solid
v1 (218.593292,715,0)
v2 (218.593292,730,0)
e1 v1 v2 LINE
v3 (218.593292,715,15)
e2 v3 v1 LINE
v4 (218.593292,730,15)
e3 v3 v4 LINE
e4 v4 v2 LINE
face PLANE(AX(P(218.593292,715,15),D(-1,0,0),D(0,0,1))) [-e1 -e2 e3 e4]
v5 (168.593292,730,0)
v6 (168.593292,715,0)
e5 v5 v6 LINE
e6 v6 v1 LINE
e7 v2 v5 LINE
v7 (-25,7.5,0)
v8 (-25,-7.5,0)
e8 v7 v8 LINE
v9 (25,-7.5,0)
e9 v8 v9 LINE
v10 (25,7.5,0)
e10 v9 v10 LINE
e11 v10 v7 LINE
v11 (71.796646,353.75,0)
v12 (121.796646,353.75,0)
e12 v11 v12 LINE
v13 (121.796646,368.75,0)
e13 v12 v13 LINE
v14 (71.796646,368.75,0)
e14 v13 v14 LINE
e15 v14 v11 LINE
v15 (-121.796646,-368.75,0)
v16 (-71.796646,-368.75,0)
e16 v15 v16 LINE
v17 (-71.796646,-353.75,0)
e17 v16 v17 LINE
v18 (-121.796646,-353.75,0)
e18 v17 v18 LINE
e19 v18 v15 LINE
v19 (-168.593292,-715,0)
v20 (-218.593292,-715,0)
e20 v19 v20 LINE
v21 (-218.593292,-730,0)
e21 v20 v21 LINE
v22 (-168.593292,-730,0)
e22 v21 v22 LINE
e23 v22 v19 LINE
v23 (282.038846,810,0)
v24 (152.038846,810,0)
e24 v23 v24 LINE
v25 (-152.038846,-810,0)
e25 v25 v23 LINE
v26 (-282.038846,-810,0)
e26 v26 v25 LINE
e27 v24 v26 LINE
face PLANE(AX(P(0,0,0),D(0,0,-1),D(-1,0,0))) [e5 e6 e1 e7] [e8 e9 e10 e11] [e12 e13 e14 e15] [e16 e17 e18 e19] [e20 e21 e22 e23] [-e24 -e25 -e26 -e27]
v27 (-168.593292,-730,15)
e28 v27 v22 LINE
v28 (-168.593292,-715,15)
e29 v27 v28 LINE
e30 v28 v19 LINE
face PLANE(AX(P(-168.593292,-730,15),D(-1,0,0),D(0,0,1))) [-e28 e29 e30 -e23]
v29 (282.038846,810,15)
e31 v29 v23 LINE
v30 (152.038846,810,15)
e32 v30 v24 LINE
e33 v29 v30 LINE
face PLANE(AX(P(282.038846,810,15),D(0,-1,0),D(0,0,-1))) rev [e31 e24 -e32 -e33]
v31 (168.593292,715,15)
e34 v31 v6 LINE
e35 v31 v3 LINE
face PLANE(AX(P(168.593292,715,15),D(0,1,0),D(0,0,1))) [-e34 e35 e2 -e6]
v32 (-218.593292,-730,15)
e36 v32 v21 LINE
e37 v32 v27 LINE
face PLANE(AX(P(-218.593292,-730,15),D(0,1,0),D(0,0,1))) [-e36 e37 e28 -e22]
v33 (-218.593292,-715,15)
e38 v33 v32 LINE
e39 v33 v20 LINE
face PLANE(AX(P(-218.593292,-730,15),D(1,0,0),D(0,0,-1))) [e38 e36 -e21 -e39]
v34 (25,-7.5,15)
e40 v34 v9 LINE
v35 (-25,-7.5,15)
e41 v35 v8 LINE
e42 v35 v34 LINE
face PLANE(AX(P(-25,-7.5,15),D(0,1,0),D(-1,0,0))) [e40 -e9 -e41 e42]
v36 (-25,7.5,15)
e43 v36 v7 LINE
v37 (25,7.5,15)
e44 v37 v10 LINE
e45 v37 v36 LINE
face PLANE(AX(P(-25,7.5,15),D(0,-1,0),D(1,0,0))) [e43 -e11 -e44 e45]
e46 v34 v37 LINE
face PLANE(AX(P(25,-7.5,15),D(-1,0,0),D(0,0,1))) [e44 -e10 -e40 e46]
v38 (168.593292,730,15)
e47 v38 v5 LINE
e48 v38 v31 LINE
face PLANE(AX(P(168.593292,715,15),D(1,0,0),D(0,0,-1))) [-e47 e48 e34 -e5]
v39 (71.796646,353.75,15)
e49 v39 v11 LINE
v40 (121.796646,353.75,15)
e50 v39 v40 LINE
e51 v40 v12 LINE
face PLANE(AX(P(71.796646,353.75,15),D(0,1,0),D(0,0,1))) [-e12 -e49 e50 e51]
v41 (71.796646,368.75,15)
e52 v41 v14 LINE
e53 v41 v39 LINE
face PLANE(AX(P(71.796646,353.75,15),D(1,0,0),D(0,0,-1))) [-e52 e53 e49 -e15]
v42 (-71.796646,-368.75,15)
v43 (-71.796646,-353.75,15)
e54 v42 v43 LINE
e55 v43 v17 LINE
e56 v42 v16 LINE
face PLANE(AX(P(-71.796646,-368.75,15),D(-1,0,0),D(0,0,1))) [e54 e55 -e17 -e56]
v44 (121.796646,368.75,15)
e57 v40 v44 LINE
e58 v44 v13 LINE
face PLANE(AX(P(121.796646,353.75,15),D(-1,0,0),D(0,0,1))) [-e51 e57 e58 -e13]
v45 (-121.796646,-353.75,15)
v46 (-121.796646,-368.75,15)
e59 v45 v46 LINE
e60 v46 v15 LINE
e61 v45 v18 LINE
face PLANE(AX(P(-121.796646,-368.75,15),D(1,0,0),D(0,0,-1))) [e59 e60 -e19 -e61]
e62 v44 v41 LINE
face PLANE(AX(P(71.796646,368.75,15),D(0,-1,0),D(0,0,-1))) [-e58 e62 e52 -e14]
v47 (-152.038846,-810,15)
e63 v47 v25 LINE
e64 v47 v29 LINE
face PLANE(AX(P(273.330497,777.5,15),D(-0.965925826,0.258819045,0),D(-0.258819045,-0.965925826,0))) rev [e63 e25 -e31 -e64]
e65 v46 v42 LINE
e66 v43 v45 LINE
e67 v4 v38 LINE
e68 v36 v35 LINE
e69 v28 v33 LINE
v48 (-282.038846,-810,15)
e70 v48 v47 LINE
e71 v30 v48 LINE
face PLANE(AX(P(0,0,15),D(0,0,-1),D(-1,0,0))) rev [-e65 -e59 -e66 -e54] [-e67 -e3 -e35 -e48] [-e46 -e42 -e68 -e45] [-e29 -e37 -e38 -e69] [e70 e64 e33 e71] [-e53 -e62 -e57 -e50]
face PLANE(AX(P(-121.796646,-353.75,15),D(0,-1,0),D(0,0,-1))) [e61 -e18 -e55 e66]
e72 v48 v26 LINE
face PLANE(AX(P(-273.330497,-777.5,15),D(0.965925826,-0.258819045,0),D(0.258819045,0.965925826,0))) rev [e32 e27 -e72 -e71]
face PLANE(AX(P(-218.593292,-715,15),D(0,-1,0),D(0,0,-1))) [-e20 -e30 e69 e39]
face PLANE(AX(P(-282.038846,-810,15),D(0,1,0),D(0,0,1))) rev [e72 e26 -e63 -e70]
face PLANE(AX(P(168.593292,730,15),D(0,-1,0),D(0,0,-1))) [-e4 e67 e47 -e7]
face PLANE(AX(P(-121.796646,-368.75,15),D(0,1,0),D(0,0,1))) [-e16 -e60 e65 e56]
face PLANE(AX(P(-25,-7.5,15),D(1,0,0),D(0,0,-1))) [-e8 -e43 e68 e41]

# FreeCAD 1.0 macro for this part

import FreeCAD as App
import Part
import Sketcher

V = App.Vector
Q = App.Units.Quantity


def add_polygon(sketch, points):
    """Adds a closed chain of lines whose ends are joined by coincident constraints."""
    first, n = sketch.GeometryCount, len(points)
    for a, b in zip(points, points[1:] + points[:1]):
        sketch.addGeometry(Part.LineSegment(App.Vector(*a, 0), App.Vector(*b, 0)), False)
    for i in range(n):
        sketch.addConstraint(Sketcher.Constraint("Coincident", first + i, 2, first + (i + 1) % n, 1))

doc = App.newDocument("Part")
params = doc.addObject("Spreadsheet::Sheet", "Params")
for row, (alias, value) in enumerate([
    ("sketch1_width", "130 mm"),
    ("sketch1_width2", "50 mm"),
    ("sketch1_height", "15 mm"),
    ("pad1_length", "15 mm"),
], start=1):
    params.set(f"A{row}", alias)
    params.set(f"B{row}", "=" + value)
    params.setAlias(f"B{row}", alias)

body = doc.addObject("PartDesign::Body", "Body")

# Sketch on XY plane
sketch1 = doc.addObject("Sketcher::SketchObject", "Sketch")
body.addObject(sketch1)
sketch1.AttachmentSupport = (doc.XY_Plane, [""])
sketch1.MapMode = "FlatFace"
add_polygon(sketch1, [(-152, -810), (282, 810), (152, 810), (-282, -810)])  # lines 0-3
add_polygon(sketch1, [(-219, -730), (-219, -715), (-169, -715), (-169, -730)])  # lines 4-7
add_polygon(sketch1, [(-122, -369), (-122, -354), (-72, -354), (-72, -369)])  # lines 8-11
add_polygon(sketch1, [(72, 354), (72, 369), (122, 369), (122, 354)])  # lines 12-15
add_polygon(sketch1, [(169, 715), (169, 730), (219, 730), (219, 715)])  # lines 16-19
add_polygon(sketch1, [(-25, -8), (-25, 8), (25, 8), (25, -8)])  # lines 20-23
sketch1.addConstraint([
    Sketcher.Constraint("Horizontal", 1),
    Sketcher.Constraint("Horizontal", 3),
    Sketcher.Constraint("Vertical", 4),
    Sketcher.Constraint("Horizontal", 5),
    Sketcher.Constraint("Vertical", 6),
    Sketcher.Constraint("Horizontal", 7),
    Sketcher.Constraint("Vertical", 8),
    Sketcher.Constraint("Horizontal", 9),
    Sketcher.Constraint("Vertical", 10),
    Sketcher.Constraint("Horizontal", 11),
    Sketcher.Constraint("Vertical", 12),
    Sketcher.Constraint("Horizontal", 13),
    Sketcher.Constraint("Vertical", 14),
    Sketcher.Constraint("Horizontal", 15),
    Sketcher.Constraint("Vertical", 16),
    Sketcher.Constraint("Horizontal", 17),
    Sketcher.Constraint("Vertical", 18),
    Sketcher.Constraint("Horizontal", 19),
    Sketcher.Constraint("Vertical", 20),
    Sketcher.Constraint("Horizontal", 21),
    Sketcher.Constraint("Vertical", 22),
    Sketcher.Constraint("Horizontal", 23),
    Sketcher.Constraint("Symmetric", 0, 2, 2, 2, -1, 1),
    Sketcher.Constraint("Symmetric", 10, 2, 12, 2, -1, 1),
    Sketcher.Constraint("Symmetric", 8, 2, 14, 2, -1, 1),
    Sketcher.Constraint("Symmetric", 6, 2, 16, 2, -1, 1),
    Sketcher.Constraint("Symmetric", 4, 2, 18, 2, -1, 1),
    Sketcher.Constraint("Symmetric", 20, 2, 22, 2, -1, 1),
    Sketcher.Constraint("Parallel", 0, 2),
    Sketcher.Constraint("Equal", 7, 9),
    Sketcher.Constraint("Equal", 19, 21),
    Sketcher.Constraint("Equal", 6, 8),
    Sketcher.Constraint("Equal", 18, 20),
    Sketcher.Constraint("DistanceX", 1, 2, 1, 1, Q("130 mm")),
    Sketcher.Constraint("DistanceX", 5, 1, 5, 2, Q("50 mm")),
    Sketcher.Constraint("DistanceY", 4, 1, 4, 2, Q("15 mm")),
    Sketcher.Constraint("Angle", 0, Q("75 deg")),
    Sketcher.Constraint("DistanceY", -1, 1, 0, 2, Q("810 mm")),
    Sketcher.Constraint("DistanceY", 4, 2, -1, 1, Q("715 mm")),
    Sketcher.Constraint("DistanceY", 9, 2, 12, 2, Q("722.5 mm")),
    Sketcher.Constraint("DistanceX", 3, 2, 8, 2, Q("30.2422 mm")),
    Sketcher.Constraint("DistanceX", 4, 2, -1, 1, Q("218.593292 mm")),
])
sketch1.setExpression("Constraints[57]", "Params.sketch1_width")
sketch1.setExpression("Constraints[58]", "Params.sketch1_width2")
sketch1.setExpression("Constraints[59]", "Params.sketch1_height")
pad1 = doc.addObject("PartDesign::Pad", "Pad")
body.addObject(pad1)
pad1.Profile = sketch1
pad1.setExpression("Length", "Params.pad1_length")

doc.recompute()
